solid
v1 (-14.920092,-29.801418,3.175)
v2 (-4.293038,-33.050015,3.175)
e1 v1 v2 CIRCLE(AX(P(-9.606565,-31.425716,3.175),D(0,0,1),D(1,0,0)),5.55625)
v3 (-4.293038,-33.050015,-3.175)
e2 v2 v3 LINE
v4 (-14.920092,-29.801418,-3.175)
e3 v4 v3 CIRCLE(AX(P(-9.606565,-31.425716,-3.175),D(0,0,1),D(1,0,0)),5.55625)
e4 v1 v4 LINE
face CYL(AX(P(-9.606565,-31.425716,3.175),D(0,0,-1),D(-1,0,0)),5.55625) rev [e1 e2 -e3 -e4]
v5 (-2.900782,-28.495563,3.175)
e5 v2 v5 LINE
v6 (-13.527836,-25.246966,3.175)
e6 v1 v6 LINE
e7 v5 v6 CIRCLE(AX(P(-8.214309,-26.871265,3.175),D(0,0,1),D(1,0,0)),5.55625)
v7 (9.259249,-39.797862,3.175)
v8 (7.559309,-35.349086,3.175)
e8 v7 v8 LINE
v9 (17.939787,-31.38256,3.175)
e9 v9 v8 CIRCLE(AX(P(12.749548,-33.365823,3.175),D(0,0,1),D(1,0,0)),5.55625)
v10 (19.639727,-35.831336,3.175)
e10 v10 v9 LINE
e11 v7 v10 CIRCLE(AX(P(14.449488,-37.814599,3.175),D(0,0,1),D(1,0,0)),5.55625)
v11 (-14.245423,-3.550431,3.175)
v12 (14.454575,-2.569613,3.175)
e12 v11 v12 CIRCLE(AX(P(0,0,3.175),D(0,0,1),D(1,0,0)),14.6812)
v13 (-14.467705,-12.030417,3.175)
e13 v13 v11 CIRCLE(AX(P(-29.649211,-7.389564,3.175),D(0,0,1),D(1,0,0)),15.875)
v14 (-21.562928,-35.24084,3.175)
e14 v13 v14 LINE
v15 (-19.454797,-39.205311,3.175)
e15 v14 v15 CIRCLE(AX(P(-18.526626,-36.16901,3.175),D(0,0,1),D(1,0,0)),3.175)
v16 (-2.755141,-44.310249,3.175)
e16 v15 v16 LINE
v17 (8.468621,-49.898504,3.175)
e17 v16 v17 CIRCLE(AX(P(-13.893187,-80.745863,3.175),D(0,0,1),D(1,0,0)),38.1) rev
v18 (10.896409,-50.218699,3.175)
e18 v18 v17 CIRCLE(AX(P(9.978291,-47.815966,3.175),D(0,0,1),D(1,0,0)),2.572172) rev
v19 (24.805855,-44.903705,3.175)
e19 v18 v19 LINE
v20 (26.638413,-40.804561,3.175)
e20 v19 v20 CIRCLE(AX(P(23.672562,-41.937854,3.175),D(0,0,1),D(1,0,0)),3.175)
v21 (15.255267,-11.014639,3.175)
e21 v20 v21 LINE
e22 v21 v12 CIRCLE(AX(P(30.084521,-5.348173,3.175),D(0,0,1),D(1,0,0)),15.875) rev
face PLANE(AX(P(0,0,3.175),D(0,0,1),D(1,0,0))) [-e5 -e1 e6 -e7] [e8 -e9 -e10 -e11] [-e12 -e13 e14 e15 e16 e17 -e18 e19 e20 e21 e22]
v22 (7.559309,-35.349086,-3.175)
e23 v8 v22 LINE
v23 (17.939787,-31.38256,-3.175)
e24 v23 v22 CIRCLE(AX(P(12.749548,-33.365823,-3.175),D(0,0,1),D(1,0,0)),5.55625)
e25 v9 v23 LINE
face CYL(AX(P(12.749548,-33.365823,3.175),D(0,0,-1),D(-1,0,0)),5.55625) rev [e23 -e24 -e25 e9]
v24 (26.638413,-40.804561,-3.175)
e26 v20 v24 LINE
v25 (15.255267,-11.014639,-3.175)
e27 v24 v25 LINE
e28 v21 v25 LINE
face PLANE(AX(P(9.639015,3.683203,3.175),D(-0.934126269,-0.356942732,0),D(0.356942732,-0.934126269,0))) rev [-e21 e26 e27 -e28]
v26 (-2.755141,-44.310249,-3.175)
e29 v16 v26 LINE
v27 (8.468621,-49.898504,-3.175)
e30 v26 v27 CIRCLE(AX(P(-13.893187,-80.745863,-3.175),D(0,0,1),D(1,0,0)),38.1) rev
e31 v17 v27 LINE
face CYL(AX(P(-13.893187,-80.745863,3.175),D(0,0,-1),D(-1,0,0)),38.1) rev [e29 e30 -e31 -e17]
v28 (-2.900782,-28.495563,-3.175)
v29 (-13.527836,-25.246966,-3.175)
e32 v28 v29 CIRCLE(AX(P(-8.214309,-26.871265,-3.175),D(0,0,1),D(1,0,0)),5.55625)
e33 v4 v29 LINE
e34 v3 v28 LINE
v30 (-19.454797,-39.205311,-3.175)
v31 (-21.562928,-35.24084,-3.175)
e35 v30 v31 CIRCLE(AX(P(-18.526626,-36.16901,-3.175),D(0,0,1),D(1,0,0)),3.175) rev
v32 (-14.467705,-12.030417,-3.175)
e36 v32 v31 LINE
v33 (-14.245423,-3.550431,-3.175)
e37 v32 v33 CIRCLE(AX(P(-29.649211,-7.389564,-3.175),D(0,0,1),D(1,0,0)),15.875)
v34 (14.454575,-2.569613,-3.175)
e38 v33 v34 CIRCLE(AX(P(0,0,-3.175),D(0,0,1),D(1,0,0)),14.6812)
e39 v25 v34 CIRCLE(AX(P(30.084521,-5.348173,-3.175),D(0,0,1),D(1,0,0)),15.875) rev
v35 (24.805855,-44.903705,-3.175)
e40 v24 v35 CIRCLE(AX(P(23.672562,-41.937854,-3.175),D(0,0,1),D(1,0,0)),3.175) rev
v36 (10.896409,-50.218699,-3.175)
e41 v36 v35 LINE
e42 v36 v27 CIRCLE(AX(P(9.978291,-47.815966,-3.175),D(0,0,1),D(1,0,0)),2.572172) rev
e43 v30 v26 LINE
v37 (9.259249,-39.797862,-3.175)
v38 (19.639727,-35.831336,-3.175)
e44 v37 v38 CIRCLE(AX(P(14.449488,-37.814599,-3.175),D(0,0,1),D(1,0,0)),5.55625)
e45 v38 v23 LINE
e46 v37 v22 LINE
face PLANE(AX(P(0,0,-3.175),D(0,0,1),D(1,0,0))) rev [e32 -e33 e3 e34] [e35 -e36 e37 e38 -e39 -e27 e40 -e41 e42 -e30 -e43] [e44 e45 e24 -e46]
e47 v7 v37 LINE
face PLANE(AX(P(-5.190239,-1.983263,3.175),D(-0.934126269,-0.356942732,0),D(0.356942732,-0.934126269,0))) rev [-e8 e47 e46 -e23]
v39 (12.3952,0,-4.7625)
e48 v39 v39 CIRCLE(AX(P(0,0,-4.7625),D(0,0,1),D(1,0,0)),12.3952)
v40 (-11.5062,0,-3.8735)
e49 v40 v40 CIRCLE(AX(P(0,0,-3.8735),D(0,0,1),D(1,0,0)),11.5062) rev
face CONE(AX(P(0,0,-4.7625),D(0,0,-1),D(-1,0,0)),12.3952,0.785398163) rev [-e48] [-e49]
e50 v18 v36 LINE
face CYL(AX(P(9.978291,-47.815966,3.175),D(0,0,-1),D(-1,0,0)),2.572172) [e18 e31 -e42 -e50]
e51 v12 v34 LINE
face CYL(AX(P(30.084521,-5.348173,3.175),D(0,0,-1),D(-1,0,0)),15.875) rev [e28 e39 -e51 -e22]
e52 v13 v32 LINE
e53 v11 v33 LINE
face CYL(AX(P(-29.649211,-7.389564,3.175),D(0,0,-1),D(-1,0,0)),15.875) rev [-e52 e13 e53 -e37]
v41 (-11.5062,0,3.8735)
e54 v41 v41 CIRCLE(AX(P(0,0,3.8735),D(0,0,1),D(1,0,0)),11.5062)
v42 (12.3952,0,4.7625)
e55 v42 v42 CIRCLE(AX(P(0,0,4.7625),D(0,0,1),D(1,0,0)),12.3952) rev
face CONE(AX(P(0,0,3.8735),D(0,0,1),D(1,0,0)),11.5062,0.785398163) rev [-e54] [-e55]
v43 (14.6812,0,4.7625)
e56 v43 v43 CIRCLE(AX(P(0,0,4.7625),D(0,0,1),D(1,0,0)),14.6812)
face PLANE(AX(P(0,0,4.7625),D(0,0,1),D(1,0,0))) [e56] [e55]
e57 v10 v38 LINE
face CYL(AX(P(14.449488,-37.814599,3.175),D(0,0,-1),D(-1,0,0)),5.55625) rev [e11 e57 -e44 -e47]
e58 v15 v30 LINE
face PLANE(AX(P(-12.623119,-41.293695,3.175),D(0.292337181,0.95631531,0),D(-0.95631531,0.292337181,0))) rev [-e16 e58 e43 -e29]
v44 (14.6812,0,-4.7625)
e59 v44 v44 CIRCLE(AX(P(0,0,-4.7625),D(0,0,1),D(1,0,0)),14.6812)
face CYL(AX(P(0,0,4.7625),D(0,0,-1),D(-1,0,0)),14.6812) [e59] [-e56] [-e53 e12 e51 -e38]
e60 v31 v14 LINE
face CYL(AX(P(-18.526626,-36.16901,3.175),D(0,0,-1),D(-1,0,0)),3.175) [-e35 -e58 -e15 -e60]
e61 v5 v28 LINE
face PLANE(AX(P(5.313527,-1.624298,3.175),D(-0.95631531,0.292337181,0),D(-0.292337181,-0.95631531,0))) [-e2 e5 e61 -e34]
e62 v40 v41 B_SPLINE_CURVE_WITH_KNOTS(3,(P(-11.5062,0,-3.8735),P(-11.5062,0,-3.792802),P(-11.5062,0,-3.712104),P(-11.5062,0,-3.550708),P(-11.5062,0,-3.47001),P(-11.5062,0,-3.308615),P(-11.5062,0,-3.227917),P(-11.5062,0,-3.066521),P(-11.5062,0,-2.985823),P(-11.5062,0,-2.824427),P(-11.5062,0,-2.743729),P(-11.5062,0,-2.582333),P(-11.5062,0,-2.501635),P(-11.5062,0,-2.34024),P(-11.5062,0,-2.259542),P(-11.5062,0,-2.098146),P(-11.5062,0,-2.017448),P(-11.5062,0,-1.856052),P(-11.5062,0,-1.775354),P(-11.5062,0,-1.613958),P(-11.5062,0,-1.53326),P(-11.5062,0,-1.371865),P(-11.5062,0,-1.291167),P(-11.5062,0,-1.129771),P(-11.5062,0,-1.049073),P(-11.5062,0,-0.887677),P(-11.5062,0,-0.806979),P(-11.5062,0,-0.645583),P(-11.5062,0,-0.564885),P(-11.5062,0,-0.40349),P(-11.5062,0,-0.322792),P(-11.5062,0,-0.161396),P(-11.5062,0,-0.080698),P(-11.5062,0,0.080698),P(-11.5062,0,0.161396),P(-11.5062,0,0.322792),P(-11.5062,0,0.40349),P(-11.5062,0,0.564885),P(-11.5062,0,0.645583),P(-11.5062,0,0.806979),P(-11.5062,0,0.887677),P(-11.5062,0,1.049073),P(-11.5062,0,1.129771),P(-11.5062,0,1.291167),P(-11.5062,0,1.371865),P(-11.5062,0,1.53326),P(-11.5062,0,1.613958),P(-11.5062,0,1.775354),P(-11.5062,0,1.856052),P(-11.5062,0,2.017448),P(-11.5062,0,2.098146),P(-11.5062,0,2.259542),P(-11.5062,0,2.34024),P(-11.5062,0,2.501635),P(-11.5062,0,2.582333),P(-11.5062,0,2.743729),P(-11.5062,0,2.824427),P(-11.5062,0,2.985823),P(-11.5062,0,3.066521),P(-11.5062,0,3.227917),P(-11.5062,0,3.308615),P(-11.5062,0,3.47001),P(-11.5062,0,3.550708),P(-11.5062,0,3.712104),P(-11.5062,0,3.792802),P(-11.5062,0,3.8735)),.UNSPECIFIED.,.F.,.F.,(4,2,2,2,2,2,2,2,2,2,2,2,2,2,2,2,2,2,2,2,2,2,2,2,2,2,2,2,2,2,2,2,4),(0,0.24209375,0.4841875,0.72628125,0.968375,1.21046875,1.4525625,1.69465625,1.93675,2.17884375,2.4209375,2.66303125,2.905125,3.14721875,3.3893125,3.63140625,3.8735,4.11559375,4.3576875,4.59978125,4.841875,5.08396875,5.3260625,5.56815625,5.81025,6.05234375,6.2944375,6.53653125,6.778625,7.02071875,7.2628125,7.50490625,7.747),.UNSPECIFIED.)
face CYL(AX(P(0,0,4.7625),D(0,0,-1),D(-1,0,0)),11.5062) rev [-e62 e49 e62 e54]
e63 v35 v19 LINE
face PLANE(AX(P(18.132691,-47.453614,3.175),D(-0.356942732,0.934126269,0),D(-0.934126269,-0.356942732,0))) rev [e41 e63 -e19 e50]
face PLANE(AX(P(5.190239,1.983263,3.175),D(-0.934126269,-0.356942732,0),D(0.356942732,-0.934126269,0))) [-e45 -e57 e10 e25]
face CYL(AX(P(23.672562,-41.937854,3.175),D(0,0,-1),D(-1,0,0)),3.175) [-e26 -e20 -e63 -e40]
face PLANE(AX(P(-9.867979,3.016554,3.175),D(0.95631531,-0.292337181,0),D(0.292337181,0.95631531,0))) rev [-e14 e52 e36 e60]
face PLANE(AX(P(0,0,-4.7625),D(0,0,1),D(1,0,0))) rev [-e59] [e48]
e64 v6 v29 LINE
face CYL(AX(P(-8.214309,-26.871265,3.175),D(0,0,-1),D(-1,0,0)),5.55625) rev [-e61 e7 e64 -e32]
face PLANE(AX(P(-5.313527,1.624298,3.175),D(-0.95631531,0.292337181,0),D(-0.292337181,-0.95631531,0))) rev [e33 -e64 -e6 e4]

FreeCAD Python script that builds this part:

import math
import FreeCAD as App
import Part
import Sketcher
Q = App.Units.Quantity


def edges_at(feature, points):
    """Names of the edges that pass closest to the given points."""
    edges = feature.Shape.Edges
    near = lambda p: min(range(len(edges)), key=lambda i: edges[i].distToShape(Part.Vertex(*p))[0])
    return sorted({f"Edge{near(p) + 1}" for p in points})

doc = App.newDocument("Part")
params = doc.addObject("Spreadsheet::Sheet", "Params")
for row, (alias, value) in enumerate([
    ("sketch1_diameter", "0.906 in"),
    ("sketch1_radius", "0.578 in"),
    ("pad1_length", "0.375 in"),
    ("sketch2_radius", "1.5 in"),
    ("sketch2_radius2", "0.625 in"),
    ("sketch2_radius3", "0.578 in"),
    ("sketch2_radius4", "0.21875 in"),
    ("sketch2_length", "0.8125 in"),
    ("pad2_length", "0.25 in"),
    ("fillet_radius", "0.125 in"),
    ("chamfer_size", "0.035 in"),
], start=1):
    params.set(f"A{row}", alias)
    params.set(f"B{row}", "=" + value)
    params.setAlias(f"B{row}", alias)

body = doc.addObject("PartDesign::Body", "Body")

sketch1 = body.newObject("Sketcher::SketchObject", "Sketch")
sketch1.AttachmentSupport = (doc.getObject("XY_Plane"), [""])
sketch1.MapMode = "FlatFace"
sketch1.addGeometry(Part.ArcOfCircle(Part.Circle(App.Vector(0, 0, 0), App.Vector(0, 0, 1), 15), math.radians(-10), math.radians(194)), False)
sketch1.addGeometry(Part.ArcOfCircle(Part.Circle(App.Vector(0, 0, 0), App.Vector(0, 0, 1), 15), math.radians(-166), math.radians(-10)), False)
sketch1.addGeometry(Part.Circle(App.Vector(0, 0, 0), App.Vector(0, 0, 1), 12), False)
sketch1.addConstraint(Sketcher.Constraint("Tangent", 0, 1, 1, 2))
sketch1.addConstraint(Sketcher.Constraint("Coincident", 1, 1, 0, 2))
sketch1.addConstraint(Sketcher.Constraint("Coincident", 0, 3, -1, 1))
sketch1.addConstraint(Sketcher.Constraint("Coincident", 2, 3, -1, 1))
sketch1.addConstraint(Sketcher.Constraint("Diameter", 2, Q("0.906 in")))
sketch1.addConstraint(Sketcher.Constraint("Radius", 0, Q("0.578 in")))
sketch1.addConstraint(Sketcher.Constraint("DistanceY", 1, 1, -1, 1, 3.550431))
sketch1.addConstraint(Sketcher.Constraint("DistanceY", 1, 1, 0, 1, 0.980818))
sketch1.setExpression("Constraints[4]", "Params.sketch1_diameter")
sketch1.setExpression("Constraints[5]", "Params.sketch1_radius")
pad1 = body.newObject("PartDesign::Pad", "Pad")
pad1.Profile = sketch1
pad1.setExpression("Length", "Params.pad1_length")
pad1.Midplane = True

sketch2 = body.newObject("Sketcher::SketchObject", "Sketch001")
sketch2.AttachmentSupport = (doc.getObject("XY_Plane"), [""])
sketch2.MapMode = "FlatFace"
sketch2.addGeometry(Part.ArcOfCircle(Part.Circle(App.Vector(-29.6, -7.4, 0), App.Vector(0, 0, 1), 15.9), math.radians(-17), math.radians(14)), False)
sketch2.addGeometry(Part.LineSegment(App.Vector(-14.5, -12, 0), App.Vector(-22.5, -38.3, 0)), False)
sketch2.addGeometry(Part.LineSegment(App.Vector(-22.5, -38.3, 0), App.Vector(-2.8, -44.3, 0)), False)
sketch2.addGeometry(Part.ArcOfCircle(Part.Circle(App.Vector(-13.9, -80.7, 0), App.Vector(0, 0, 1), 38.1), math.radians(54.06), math.radians(73)), False)
sketch2.addGeometry(Part.ArcOfCircle(Part.Circle(App.Vector(10, -47.8, 0), App.Vector(0, 0, 1), 2.6), math.radians(-126), math.radians(-69)), False)
sketch2.addGeometry(Part.LineSegment(App.Vector(10.9, -50.2, 0), App.Vector(27.8, -43.8, 0)), False)
sketch2.addGeometry(Part.LineSegment(App.Vector(27.8, -43.8, 0), App.Vector(15.3, -11, 0)), False)
sketch2.addGeometry(Part.ArcOfCircle(Part.Circle(App.Vector(30.1, -5.3, 0), App.Vector(0, 0, 1), 15.9), math.radians(170), math.radians(201)), False)
sketch2.addGeometry(Part.ArcOfCircle(Part.Circle(App.Vector(0, 0, 0), App.Vector(0, 0, 1), 14.7), math.radians(-166), math.radians(-10)), False)
sketch2.addGeometry(Part.LineSegment(App.Vector(17.9, -31.4, 0), App.Vector(19.6, -35.8, 0)), False)
sketch2.addGeometry(Part.ArcOfCircle(Part.Circle(App.Vector(14.4, -37.8, 0), App.Vector(0, 0, 1), 5.6), math.radians(-159), math.radians(21)), False)
sketch2.addGeometry(Part.LineSegment(App.Vector(9.3, -39.8, 0), App.Vector(7.6, -35.3, 0)), False)
sketch2.addGeometry(Part.ArcOfCircle(Part.Circle(App.Vector(12.7, -33.4, 0), App.Vector(0, 0, 1), 5.6), math.radians(21), math.radians(201)), False)
sketch2.addGeometry(Part.LineSegment(App.Vector(-2.9, -28.5, 0), App.Vector(-4.3, -33.1, 0)), False)
sketch2.addGeometry(Part.ArcOfCircle(Part.Circle(App.Vector(-9.6, -31.4, 0), App.Vector(0, 0, 1), 5.6), math.radians(163), math.radians(343)), False)
sketch2.addGeometry(Part.LineSegment(App.Vector(-14.9, -29.8, 0), App.Vector(-13.5, -25.2, 0)), False)
sketch2.addGeometry(Part.ArcOfCircle(Part.Circle(App.Vector(-8.2, -26.9, 0), App.Vector(0, 0, 1), 5.6), math.radians(-17), math.radians(163)), False)
sketch2.addConstraint(Sketcher.Constraint("Tangent", 0, 1, 1, 1))
sketch2.addConstraint(Sketcher.Constraint("Coincident", 1, 2, 2, 1))
sketch2.addConstraint(Sketcher.Constraint("Tangent", 2, 2, 3, 2))
sketch2.addConstraint(Sketcher.Constraint("Tangent", 3, 1, 4, 1))
sketch2.addConstraint(Sketcher.Constraint("Tangent", 4, 2, 5, 1))
sketch2.addConstraint(Sketcher.Constraint("Coincident", 5, 2, 6, 1))
sketch2.addConstraint(Sketcher.Constraint("Tangent", 6, 2, 7, 2))
sketch2.addConstraint(Sketcher.Constraint("Tangent", 7, 1, 8, 2))
sketch2.addConstraint(Sketcher.Constraint("Tangent", 8, 1, 0, 2))
sketch2.addConstraint(Sketcher.Constraint("Tangent", 9, 2, 10, 2))
sketch2.addConstraint(Sketcher.Constraint("Tangent", 10, 1, 11, 1))
sketch2.addConstraint(Sketcher.Constraint("Tangent", 11, 2, 12, 2))
sketch2.addConstraint(Sketcher.Constraint("Tangent", 12, 1, 9, 1))
sketch2.addConstraint(Sketcher.Constraint("Tangent", 13, 2, 14, 2))
sketch2.addConstraint(Sketcher.Constraint("Tangent", 14, 1, 15, 1))
sketch2.addConstraint(Sketcher.Constraint("Tangent", 15, 2, 16, 2))
sketch2.addConstraint(Sketcher.Constraint("Tangent", 16, 1, 13, 1))
sketch2.addConstraint(Sketcher.Constraint("Coincident", 8, 3, -1, 1))
sketch2.addConstraint(Sketcher.Constraint("Equal", 0, 7))
sketch2.addConstraint(Sketcher.Constraint("Equal", 10, 12))
sketch2.addConstraint(Sketcher.Constraint("Equal", 12, 14))
sketch2.addConstraint(Sketcher.Constraint("Equal", 14, 16))
sketch2.addConstraint(Sketcher.Constraint("Perpendicular", 1, 2))
sketch2.addConstraint(Sketcher.Constraint("Perpendicular", 5, 6))
sketch2.addConstraint(Sketcher.Constraint("Parallel", 6, 9))
sketch2.addConstraint(Sketcher.Constraint("Perpendicular", 2, 13))
sketch2.addConstraint(Sketcher.Constraint("Equal", 11, 13))
sketch2.addConstraint(Sketcher.Constraint("Radius", 3, Q("1.5 in")))
sketch2.addConstraint(Sketcher.Constraint("Radius", 0, Q("0.625 in")))
sketch2.addConstraint(Sketcher.Constraint("Radius", 8, Q("0.578 in")))
sketch2.addConstraint(Sketcher.Constraint("Radius", 10, Q("0.21875 in")))
sketch2.addConstraint(Sketcher.Constraint("Distance", 2, Q("0.8125 in")))
sketch2.addConstraint(Sketcher.Constraint("Distance", 9, Q("0.1875 in")))
sketch2.addConstraint(Sketcher.Constraint("Radius", 4, 2.572172))
sketch2.addConstraint(Sketcher.Constraint("DistanceY", 10, 3, -1, 1, 37.814599))
sketch2.addConstraint(Sketcher.Constraint("DistanceX", 1, 2, -1, 1, 22.491098))
sketch2.addConstraint(Sketcher.Constraint("DistanceY", 4, 2, -1, 1, 50.218699))
sketch2.addConstraint(Sketcher.Constraint("DistanceY", 3, 3, 0, 3, 73.356299))
sketch2.addConstraint(Sketcher.Constraint("DistanceX", 0, 3, 4, 3, 39.627501))
sketch2.addConstraint(Sketcher.Constraint("DistanceX", 0, 3, 10, 3, 44.098699))
sketch2.addConstraint(Sketcher.Constraint("DistanceX", 16, 3, 4, 3, 18.1926))
sketch2.addConstraint(Sketcher.Constraint("DistanceY", 4, 3, 16, 3, 20.944701))
sketch2.addConstraint(Sketcher.Constraint("DistanceX", 10, 1, 12, 3, 3.490299))
sketch2.addConstraint(Sketcher.Constraint("Distance", 5, 18.065328))
sketch2.setExpression("Constraints[27]", "Params.sketch2_radius")
sketch2.setExpression("Constraints[28]", "Params.sketch2_radius2")
sketch2.setExpression("Constraints[29]", "Params.sketch2_radius3")
sketch2.setExpression("Constraints[30]", "Params.sketch2_radius4")
sketch2.setExpression("Constraints[31]", "Params.sketch2_length")
pad2 = body.newObject("PartDesign::Pad", "Pad001")
pad2.Profile = sketch2
pad2.setExpression("Length", "Params.pad2_length")
pad2.Midplane = True
doc.recompute()

fillet = body.newObject("PartDesign::Fillet", "Fillet")
fillet.Base = (pad2, edges_at(pad2, [(-22.491, -38.277, 0), (27.772, -43.77, 0)]))
fillet.setExpression("Radius", "Params.fillet_radius")
doc.recompute()

chamfer = body.newObject("PartDesign::Chamfer", "Chamfer")
chamfer.Base = (fillet, edges_at(fillet, [(11.506, 0, -4.763), (11.506, 0, 4.763)]))
chamfer.setExpression("Size", "Params.chamfer_size")

doc.recompute()
